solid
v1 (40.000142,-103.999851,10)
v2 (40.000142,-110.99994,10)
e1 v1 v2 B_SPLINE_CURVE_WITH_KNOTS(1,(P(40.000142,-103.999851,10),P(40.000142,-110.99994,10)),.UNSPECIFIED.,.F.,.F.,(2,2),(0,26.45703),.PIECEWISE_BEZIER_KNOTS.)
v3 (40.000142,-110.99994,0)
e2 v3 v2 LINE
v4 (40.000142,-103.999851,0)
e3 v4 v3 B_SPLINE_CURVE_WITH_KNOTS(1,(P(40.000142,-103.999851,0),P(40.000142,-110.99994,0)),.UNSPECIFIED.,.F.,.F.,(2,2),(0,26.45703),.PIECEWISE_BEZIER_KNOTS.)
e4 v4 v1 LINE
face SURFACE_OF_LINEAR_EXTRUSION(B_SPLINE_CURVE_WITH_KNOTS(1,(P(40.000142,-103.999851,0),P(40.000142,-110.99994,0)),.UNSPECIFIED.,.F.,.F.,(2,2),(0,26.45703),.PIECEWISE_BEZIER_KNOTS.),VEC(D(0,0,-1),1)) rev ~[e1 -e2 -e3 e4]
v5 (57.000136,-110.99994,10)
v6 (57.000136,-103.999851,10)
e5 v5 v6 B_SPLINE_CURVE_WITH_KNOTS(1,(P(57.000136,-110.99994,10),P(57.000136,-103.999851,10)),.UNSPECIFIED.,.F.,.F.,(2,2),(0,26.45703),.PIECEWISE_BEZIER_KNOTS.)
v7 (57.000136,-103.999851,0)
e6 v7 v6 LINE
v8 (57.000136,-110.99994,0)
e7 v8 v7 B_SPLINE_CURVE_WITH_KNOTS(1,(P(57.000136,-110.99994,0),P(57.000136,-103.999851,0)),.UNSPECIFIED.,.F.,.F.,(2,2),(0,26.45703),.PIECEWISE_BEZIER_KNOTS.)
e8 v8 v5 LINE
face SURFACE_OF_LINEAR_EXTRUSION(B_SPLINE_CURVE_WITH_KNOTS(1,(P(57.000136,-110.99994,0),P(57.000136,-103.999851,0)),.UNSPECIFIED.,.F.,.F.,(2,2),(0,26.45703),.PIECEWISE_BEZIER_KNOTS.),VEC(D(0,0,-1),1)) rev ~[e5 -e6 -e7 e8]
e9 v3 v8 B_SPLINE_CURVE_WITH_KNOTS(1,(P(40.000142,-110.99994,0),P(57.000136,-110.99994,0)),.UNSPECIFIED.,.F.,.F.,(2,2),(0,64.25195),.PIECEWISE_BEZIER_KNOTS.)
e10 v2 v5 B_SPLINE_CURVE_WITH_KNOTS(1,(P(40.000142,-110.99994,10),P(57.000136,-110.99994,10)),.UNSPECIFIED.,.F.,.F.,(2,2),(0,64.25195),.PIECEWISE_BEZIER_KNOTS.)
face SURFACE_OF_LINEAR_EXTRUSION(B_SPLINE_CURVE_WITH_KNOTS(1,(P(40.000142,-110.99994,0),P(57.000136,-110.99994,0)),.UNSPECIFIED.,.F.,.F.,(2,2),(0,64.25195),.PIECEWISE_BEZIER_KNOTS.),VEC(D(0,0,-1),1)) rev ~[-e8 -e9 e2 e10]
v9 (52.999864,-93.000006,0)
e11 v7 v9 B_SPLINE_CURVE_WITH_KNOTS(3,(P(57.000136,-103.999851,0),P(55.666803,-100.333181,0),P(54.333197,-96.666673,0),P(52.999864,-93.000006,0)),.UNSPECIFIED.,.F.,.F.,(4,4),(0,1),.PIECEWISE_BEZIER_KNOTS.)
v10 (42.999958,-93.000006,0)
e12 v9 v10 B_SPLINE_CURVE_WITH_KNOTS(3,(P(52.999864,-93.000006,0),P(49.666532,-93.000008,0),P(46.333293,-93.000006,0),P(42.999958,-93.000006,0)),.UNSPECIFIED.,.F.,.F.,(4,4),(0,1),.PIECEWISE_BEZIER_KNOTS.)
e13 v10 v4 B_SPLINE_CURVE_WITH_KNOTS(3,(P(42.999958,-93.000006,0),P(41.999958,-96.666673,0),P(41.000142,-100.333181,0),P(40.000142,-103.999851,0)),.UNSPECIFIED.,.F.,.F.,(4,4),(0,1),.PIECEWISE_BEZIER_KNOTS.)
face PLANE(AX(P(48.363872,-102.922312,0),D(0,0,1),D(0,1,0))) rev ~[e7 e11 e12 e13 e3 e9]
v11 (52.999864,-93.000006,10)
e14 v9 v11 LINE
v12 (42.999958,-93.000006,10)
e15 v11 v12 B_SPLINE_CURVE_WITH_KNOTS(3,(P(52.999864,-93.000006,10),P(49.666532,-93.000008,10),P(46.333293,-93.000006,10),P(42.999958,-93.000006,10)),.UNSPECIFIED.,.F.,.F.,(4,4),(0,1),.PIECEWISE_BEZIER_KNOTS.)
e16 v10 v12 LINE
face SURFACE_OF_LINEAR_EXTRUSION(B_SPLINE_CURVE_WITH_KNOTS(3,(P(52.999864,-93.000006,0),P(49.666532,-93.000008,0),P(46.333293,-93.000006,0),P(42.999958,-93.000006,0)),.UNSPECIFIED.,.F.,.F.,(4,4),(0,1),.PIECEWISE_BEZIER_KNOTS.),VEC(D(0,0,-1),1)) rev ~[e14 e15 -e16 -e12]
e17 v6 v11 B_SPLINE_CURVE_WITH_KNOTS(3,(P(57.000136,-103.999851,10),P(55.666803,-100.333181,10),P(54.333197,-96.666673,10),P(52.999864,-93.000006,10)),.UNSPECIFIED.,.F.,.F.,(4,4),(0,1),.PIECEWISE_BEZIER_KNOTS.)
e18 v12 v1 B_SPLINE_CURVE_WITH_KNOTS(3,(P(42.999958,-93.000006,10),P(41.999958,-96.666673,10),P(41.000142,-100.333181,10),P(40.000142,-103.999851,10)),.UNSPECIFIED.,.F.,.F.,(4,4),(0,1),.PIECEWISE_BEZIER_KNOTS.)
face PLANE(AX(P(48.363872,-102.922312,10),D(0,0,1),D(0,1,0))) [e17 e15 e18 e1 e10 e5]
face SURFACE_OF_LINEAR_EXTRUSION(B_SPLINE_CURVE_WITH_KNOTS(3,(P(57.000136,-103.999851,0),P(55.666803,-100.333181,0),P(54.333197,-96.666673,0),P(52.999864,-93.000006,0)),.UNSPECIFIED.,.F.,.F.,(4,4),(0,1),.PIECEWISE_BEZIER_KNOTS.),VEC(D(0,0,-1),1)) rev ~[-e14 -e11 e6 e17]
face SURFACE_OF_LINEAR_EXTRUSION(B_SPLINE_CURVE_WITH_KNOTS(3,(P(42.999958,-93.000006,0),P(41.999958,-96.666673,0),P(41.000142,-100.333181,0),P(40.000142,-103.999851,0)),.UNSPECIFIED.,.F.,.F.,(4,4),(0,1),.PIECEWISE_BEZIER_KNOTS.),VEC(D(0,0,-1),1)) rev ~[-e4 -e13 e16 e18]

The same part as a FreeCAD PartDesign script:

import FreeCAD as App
import Part
import Sketcher

doc = App.newDocument("Part")
body = doc.addObject("PartDesign::Body", "Body")

# Sketch on XY plane
sketch1 = body.newObject("Sketcher::SketchObject", "Sketch")
sketch1.AttachmentSupport = (doc.getObject("XY_Plane"), [""])
sketch1.MapMode = "FlatFace"
sketch1.addGeometry([
    Part.BSplineCurve([App.Vector(42.999958, -93.000006, 0), App.Vector(41.999958, -96.666673, 0), App.Vector(41.000142, -100.333181, 0), App.Vector(40.000142, -103.999851, 0)], [4, 4], [0, 1], False, 3, [1, 1, 1, 1], False),  # 0
    Part.BSplineCurve([App.Vector(40.000142, -103.999851, 0), App.Vector(40.000142, -110.99994, 0)], [2, 2], [0, 26.45703], False, 1, [1, 1], False),  # 1
    Part.BSplineCurve([App.Vector(40.000142, -110.99994, 0), App.Vector(57.000136, -110.99994, 0)], [2, 2], [0, 64.25195], False, 1, [1, 1], False),  # 2
    Part.BSplineCurve([App.Vector(57.000136, -110.99994, 0), App.Vector(57.000136, -103.999851, 0)], [2, 2], [0, 26.45703], False, 1, [1, 1], False),  # 3
    Part.BSplineCurve([App.Vector(57.000136, -103.999851, 0), App.Vector(55.666803, -100.333181, 0), App.Vector(54.333197, -96.666673, 0), App.Vector(52.999864, -93.000006, 0)], [4, 4], [0, 1], False, 3, [1, 1, 1, 1], False),  # 4
    Part.BSplineCurve([App.Vector(52.999864, -93.000006, 0), App.Vector(49.666532, -93.000008, 0), App.Vector(46.333293, -93.000006, 0), App.Vector(42.999958, -93.000006, 0)], [4, 4], [0, 1], False, 3, [1, 1, 1, 1], False),  # 5
], False)
sketch1.addConstraint([
    Sketcher.Constraint("Block", 0),
    Sketcher.Constraint("Block", 1),
    Sketcher.Constraint("Block", 2),
    Sketcher.Constraint("Block", 3),
    Sketcher.Constraint("Block", 4),
    Sketcher.Constraint("Block", 5),
])
pad1 = body.newObject("PartDesign::Pad", "Pad")
pad1.Profile = sketch1
pad1.Length = 10

doc.recompute()
